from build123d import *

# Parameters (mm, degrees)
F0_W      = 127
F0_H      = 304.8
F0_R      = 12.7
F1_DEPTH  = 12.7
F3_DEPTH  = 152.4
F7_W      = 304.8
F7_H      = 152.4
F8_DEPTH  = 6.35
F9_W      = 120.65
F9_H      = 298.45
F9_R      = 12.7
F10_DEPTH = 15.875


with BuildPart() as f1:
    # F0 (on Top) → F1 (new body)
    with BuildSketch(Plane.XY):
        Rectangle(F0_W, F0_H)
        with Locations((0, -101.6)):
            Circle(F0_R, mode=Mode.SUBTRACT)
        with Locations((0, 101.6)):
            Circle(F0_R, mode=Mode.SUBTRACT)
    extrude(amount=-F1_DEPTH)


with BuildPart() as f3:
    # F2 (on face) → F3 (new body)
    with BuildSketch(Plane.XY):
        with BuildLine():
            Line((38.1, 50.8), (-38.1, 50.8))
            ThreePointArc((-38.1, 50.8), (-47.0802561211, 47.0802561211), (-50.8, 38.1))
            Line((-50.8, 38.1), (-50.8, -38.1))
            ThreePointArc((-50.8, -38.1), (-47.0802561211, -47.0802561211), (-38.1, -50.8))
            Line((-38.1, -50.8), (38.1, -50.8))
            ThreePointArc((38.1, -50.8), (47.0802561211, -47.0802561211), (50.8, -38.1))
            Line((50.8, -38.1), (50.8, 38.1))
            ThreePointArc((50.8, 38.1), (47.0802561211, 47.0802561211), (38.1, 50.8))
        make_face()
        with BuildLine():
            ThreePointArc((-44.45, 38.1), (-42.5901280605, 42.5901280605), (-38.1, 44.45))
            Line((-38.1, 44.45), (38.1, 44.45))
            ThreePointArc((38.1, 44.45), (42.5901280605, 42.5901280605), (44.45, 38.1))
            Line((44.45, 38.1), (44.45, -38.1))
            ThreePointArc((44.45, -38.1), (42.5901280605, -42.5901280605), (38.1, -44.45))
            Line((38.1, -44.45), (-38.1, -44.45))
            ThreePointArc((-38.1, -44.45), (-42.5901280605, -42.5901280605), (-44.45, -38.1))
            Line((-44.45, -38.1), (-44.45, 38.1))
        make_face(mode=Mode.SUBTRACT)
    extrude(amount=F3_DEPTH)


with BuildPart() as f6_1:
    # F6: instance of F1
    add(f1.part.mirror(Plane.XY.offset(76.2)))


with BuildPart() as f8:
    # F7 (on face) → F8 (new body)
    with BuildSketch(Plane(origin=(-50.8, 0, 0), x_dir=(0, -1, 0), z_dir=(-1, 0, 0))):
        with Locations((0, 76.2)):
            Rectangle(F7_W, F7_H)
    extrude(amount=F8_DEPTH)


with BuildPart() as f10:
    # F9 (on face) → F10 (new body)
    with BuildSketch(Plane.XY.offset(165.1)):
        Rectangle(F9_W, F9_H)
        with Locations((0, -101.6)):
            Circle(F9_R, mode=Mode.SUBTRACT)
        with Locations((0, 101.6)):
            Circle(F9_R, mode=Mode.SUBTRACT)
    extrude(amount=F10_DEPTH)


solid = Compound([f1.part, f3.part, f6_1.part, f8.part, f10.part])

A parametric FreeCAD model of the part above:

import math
import FreeCAD as App
import Part
import Sketcher

V = App.Vector
Q = App.Units.Quantity

doc = App.newDocument("Part")
body = doc.addObject("PartDesign::Body", "Body")

# Sketch on XY plane
sketch1 = body.newObject("Sketcher::SketchObject", "Sketch")
sketch1.AttachmentSupport = (doc.getObject("XY_Plane"), [""])
sketch1.MapMode = "FlatFace"
sketch1.addGeometry(Part.LineSegment(V(-63.5, 152.4, 0), V(-63.5, -152.4, 0)), False)
sketch1.addGeometry(Part.LineSegment(V(-63.5, -152.4, 0), V(63.5, -152.4, 0)), False)
sketch1.addGeometry(Part.LineSegment(V(63.5, -152.4, 0), V(63.5, 152.4, 0)), False)
sketch1.addGeometry(Part.LineSegment(V(63.5, 152.4, 0), V(-63.5, 152.4, 0)), False)
sketch1.addGeometry(Part.Circle(V(0, -101.6, 0), V(0, 0, 1), 12.7), False)
sketch1.addGeometry(Part.Circle(V(0, 101.6, 0), V(0, 0, 1), 12.7), False)
sketch1.addConstraint(Sketcher.Constraint("Coincident", 0, 2, 1, 1))
sketch1.addConstraint(Sketcher.Constraint("Coincident", 1, 2, 2, 1))
sketch1.addConstraint(Sketcher.Constraint("Coincident", 2, 2, 3, 1))
sketch1.addConstraint(Sketcher.Constraint("Coincident", 3, 2, 0, 1))
sketch1.addConstraint(Sketcher.Constraint("Vertical", 0))
sketch1.addConstraint(Sketcher.Constraint("Horizontal", 1))
sketch1.addConstraint(Sketcher.Constraint("Vertical", 2))
sketch1.addConstraint(Sketcher.Constraint("Horizontal", 3))
sketch1.addConstraint(Sketcher.Constraint("Equal", 4, 5))
sketch1.addConstraint(Sketcher.Constraint("Symmetric", 4, 3, 5, 3, -1, 1))
sketch1.addConstraint(Sketcher.Constraint("Symmetric", 0, 2, 2, 2, -1, 1))
sketch1.addConstraint(Sketcher.Constraint("PointOnObject", 4, 3, -2))
sketch1.addConstraint(Sketcher.Constraint("Diameter", 4, Q("1 in")))
sketch1.addConstraint(Sketcher.Constraint("DistanceX", 1, 1, 1, 2, Q("5 in")))
sketch1.addConstraint(Sketcher.Constraint("DistanceY", 0, 2, 0, 1, Q("12 in")))
sketch1.addConstraint(Sketcher.Constraint("DistanceY", 4, 3, -1, 1, Q("4 in")))
pad1 = body.newObject("PartDesign::Pad", "Pad")
pad1.Profile = sketch1
pad1.Length = Q("0.5 in")
pad1.Reversed = True
body2 = doc.addObject("PartDesign::Body", "Body001")

# Sketch on XY plane
sketch2 = body2.newObject("Sketcher::SketchObject", "Sketch001")
sketch2.AttachmentSupport = (doc.getObject("XY_Plane001"), [""])
sketch2.MapMode = "FlatFace"
sketch2.addGeometry(Part.LineSegment(V(38.1, 50.8, 0), V(-38.1, 50.8, 0)), False)
sketch2.addGeometry(Part.ArcOfCircle(Part.Circle(V(-38.1, 38.1, 0), V(0, 0, 1), 12.7), math.radians(90), math.radians(180)), False)
sketch2.addGeometry(Part.LineSegment(V(-50.8, 38.1, 0), V(-50.8, -38.1, 0)), False)
sketch2.addGeometry(Part.ArcOfCircle(Part.Circle(V(-38.1, -38.1, 0), V(0, 0, 1), 12.7), math.radians(180), math.radians(270)), False)
sketch2.addGeometry(Part.LineSegment(V(-38.1, -50.8, 0), V(38.1, -50.8, 0)), False)
sketch2.addGeometry(Part.ArcOfCircle(Part.Circle(V(38.1, -38.1, 0), V(0, 0, 1), 12.7), math.radians(-90), math.radians(0)), False)
sketch2.addGeometry(Part.LineSegment(V(50.8, -38.1, 0), V(50.8, 38.1, 0)), False)
sketch2.addGeometry(Part.ArcOfCircle(Part.Circle(V(38.1, 38.1, 0), V(0, 0, 1), 12.7), math.radians(0), math.radians(90)), False)
sketch2.addGeometry(Part.LineSegment(V(-44.45, -38.1, 0), V(-44.45, 38.1, 0)), False)
sketch2.addGeometry(Part.ArcOfCircle(Part.Circle(V(-38.1, 38.1, 0), V(0, 0, 1), 6.35), math.radians(90), math.radians(180)), False)
sketch2.addGeometry(Part.LineSegment(V(-38.1, 44.45, 0), V(38.1, 44.45, 0)), False)
sketch2.addGeometry(Part.ArcOfCircle(Part.Circle(V(38.1, 38.1, 0), V(0, 0, 1), 6.35), math.radians(0), math.radians(90)), False)
sketch2.addGeometry(Part.LineSegment(V(44.45, 38.1, 0), V(44.45, -38.1, 0)), False)
sketch2.addGeometry(Part.ArcOfCircle(Part.Circle(V(38.1, -38.1, 0), V(0, 0, 1), 6.35), math.radians(-90), math.radians(0)), False)
sketch2.addGeometry(Part.LineSegment(V(38.1, -44.45, 0), V(-38.1, -44.45, 0)), False)
sketch2.addGeometry(Part.ArcOfCircle(Part.Circle(V(-38.1, -38.1, 0), V(0, 0, 1), 6.35), math.radians(180), math.radians(270)), False)
sketch2.addConstraint(Sketcher.Constraint("Tangent", 0, 2, 1, 1))
sketch2.addConstraint(Sketcher.Constraint("Tangent", 1, 2, 2, 1))
sketch2.addConstraint(Sketcher.Constraint("Tangent", 2, 2, 3, 1))
sketch2.addConstraint(Sketcher.Constraint("Tangent", 3, 2, 4, 1))
sketch2.addConstraint(Sketcher.Constraint("Tangent", 4, 2, 5, 1))
sketch2.addConstraint(Sketcher.Constraint("Tangent", 5, 2, 6, 1))
sketch2.addConstraint(Sketcher.Constraint("Tangent", 6, 2, 7, 1))
sketch2.addConstraint(Sketcher.Constraint("Tangent", 7, 2, 0, 1))
sketch2.addConstraint(Sketcher.Constraint("Tangent", 8, 2, 9, 2))
sketch2.addConstraint(Sketcher.Constraint("Tangent", 9, 1, 10, 1))
sketch2.addConstraint(Sketcher.Constraint("Tangent", 10, 2, 11, 2))
sketch2.addConstraint(Sketcher.Constraint("Tangent", 11, 1, 12, 1))
sketch2.addConstraint(Sketcher.Constraint("Tangent", 12, 2, 13, 2))
sketch2.addConstraint(Sketcher.Constraint("Tangent", 13, 1, 14, 1))
sketch2.addConstraint(Sketcher.Constraint("Tangent", 14, 2, 15, 2))
sketch2.addConstraint(Sketcher.Constraint("Tangent", 15, 1, 8, 1))
sketch2.addConstraint(Sketcher.Constraint("Horizontal", 0))
sketch2.addConstraint(Sketcher.Constraint("Vertical", 2))
sketch2.addConstraint(Sketcher.Constraint("Horizontal", 4))
sketch2.addConstraint(Sketcher.Constraint("Vertical", 6))
sketch2.addConstraint(Sketcher.Constraint("Vertical", 8))
sketch2.addConstraint(Sketcher.Constraint("Horizontal", 10))
sketch2.addConstraint(Sketcher.Constraint("Vertical", 12))
sketch2.addConstraint(Sketcher.Constraint("Horizontal", 14))
sketch2.addConstraint(Sketcher.Constraint("Coincident", 9, 3, 1, 3))
sketch2.addConstraint(Sketcher.Constraint("Coincident", 11, 3, 7, 3))
sketch2.addConstraint(Sketcher.Constraint("Coincident", 13, 3, 5, 3))
sketch2.addConstraint(Sketcher.Constraint("Equal", 1, 3))
sketch2.addConstraint(Sketcher.Constraint("Equal", 3, 5))
sketch2.addConstraint(Sketcher.Constraint("Equal", 5, 7))
sketch2.addConstraint(Sketcher.Constraint("Equal", 13, 15))
sketch2.addConstraint(Sketcher.Constraint("Symmetric", 1, 3, 5, 3, -1, 1))
sketch2.addConstraint(Sketcher.Constraint("Equal", 14, 2))
sketch2.addConstraint(Sketcher.Constraint("Radius", 1, Q("0.5 in")))
sketch2.addConstraint(Sketcher.Constraint("DistanceX", 0, 2, 0, 1, Q("3 in")))
sketch2.addConstraint(Sketcher.Constraint("Radius", 9, Q("0.25 in")))
pad2 = body2.newObject("PartDesign::Pad", "Pad001")
pad2.Profile = sketch2
pad2.Length = Q("6 in")
body3 = doc.addObject("PartDesign::Body", "Body002")
doc.recompute()

mirroring = doc.addObject("Part::Mirroring", "Mirroring")
mirroring.Source = body
mirroring.Base = V(0, 0, 76.2)
mirroring.Normal = V(0, 0, 1)
body3.BaseFeature = mirroring
doc.recompute()
body4 = doc.addObject("PartDesign::Body", "Body003")

# Sketch on YZ plane
sketch3 = body4.newObject("Sketcher::SketchObject", "Sketch002")
sketch3.AttachmentSupport = (doc.getObject("YZ_Plane003"), [""])
sketch3.MapMode = "FlatFace"
sketch3.AttachmentOffset = App.Placement(V(0, 0, -2 * 25.4), App.Rotation())
sketch3.addGeometry(Part.LineSegment(V(152.4, 152.4, 0), V(152.4, 0, 0)), False)
sketch3.addGeometry(Part.LineSegment(V(152.4, 0, 0), V(-152.4, 0, 0)), False)
sketch3.addGeometry(Part.LineSegment(V(-152.4, 0, 0), V(-152.4, 152.4, 0)), False)
sketch3.addGeometry(Part.LineSegment(V(-152.4, 152.4, 0), V(152.4, 152.4, 0)), False)
sketch3.addConstraint(Sketcher.Constraint("Coincident", 0, 2, 1, 1))
sketch3.addConstraint(Sketcher.Constraint("Coincident", 1, 2, 2, 1))
sketch3.addConstraint(Sketcher.Constraint("Coincident", 2, 2, 3, 1))
sketch3.addConstraint(Sketcher.Constraint("Coincident", 3, 2, 0, 1))
sketch3.addConstraint(Sketcher.Constraint("Vertical", 0))
sketch3.addConstraint(Sketcher.Constraint("Horizontal", 1))
sketch3.addConstraint(Sketcher.Constraint("Vertical", 2))
sketch3.addConstraint(Sketcher.Constraint("Horizontal", 3))
sketch3.addConstraint(Sketcher.Constraint("Symmetric", 0, 2, 1, 2, -1, 1))
sketch3.addConstraint(Sketcher.Constraint("DistanceX", 1, 2, 1, 1, Q("12 in")))
sketch3.addConstraint(Sketcher.Constraint("DistanceY", 0, 2, 0, 1, Q("6 in")))
pad3 = body4.newObject("PartDesign::Pad", "Pad002")
pad3.Profile = sketch3
pad3.Length = Q("0.25 in")
pad3.Reversed = True
body5 = doc.addObject("PartDesign::Body", "Body004")

# Sketch on XY plane
sketch4 = body5.newObject("Sketcher::SketchObject", "Sketch003")
sketch4.AttachmentSupport = (doc.getObject("XY_Plane004"), [""])
sketch4.MapMode = "FlatFace"
sketch4.AttachmentOffset = App.Placement(V(0, 0, 6.5 * 25.4), App.Rotation())
sketch4.addGeometry(Part.LineSegment(V(-60.325, 149.225, 0), V(-60.325, -149.225, 0)), False)
sketch4.addGeometry(Part.LineSegment(V(-60.325, -149.225, 0), V(60.325, -149.225, 0)), False)
sketch4.addGeometry(Part.LineSegment(V(60.325, -149.225, 0), V(60.325, 149.225, 0)), False)
sketch4.addGeometry(Part.LineSegment(V(60.325, 149.225, 0), V(-60.325, 149.225, 0)), False)
sketch4.addGeometry(Part.Circle(V(0, -101.6, 0), V(0, 0, 1), 12.7), False)
sketch4.addGeometry(Part.Circle(V(0, 101.6, 0), V(0, 0, 1), 12.7), False)
sketch4.addConstraint(Sketcher.Constraint("Coincident", 0, 2, 1, 1))
sketch4.addConstraint(Sketcher.Constraint("Coincident", 1, 2, 2, 1))
sketch4.addConstraint(Sketcher.Constraint("Coincident", 2, 2, 3, 1))
sketch4.addConstraint(Sketcher.Constraint("Coincident", 3, 2, 0, 1))
sketch4.addConstraint(Sketcher.Constraint("Vertical", 0))
sketch4.addConstraint(Sketcher.Constraint("Horizontal", 1))
sketch4.addConstraint(Sketcher.Constraint("Vertical", 2))
sketch4.addConstraint(Sketcher.Constraint("Horizontal", 3))
sketch4.addConstraint(Sketcher.Constraint("Equal", 4, 5))
sketch4.addConstraint(Sketcher.Constraint("Symmetric", 4, 3, 5, 3, -1, 1))
sketch4.addConstraint(Sketcher.Constraint("Symmetric", 0, 2, 2, 2, -1, 1))
sketch4.addConstraint(Sketcher.Constraint("PointOnObject", 4, 3, -2))
sketch4.addConstraint(Sketcher.Constraint("Diameter", 4, Q("1 in")))
sketch4.addConstraint(Sketcher.Constraint("DistanceY", 4, 3, -1, 1, Q("4 in")))
sketch4.addConstraint(Sketcher.Constraint("DistanceX", 1, 1, 1, 2, Q("4.75 in")))
sketch4.addConstraint(Sketcher.Constraint("DistanceY", 0, 2, 0, 1, Q("11.75 in")))
pad4 = body5.newObject("PartDesign::Pad", "Pad003")
pad4.Profile = sketch4
pad4.Length = Q("0.625 in")
mirroring.Visibility = False

doc.recompute()
